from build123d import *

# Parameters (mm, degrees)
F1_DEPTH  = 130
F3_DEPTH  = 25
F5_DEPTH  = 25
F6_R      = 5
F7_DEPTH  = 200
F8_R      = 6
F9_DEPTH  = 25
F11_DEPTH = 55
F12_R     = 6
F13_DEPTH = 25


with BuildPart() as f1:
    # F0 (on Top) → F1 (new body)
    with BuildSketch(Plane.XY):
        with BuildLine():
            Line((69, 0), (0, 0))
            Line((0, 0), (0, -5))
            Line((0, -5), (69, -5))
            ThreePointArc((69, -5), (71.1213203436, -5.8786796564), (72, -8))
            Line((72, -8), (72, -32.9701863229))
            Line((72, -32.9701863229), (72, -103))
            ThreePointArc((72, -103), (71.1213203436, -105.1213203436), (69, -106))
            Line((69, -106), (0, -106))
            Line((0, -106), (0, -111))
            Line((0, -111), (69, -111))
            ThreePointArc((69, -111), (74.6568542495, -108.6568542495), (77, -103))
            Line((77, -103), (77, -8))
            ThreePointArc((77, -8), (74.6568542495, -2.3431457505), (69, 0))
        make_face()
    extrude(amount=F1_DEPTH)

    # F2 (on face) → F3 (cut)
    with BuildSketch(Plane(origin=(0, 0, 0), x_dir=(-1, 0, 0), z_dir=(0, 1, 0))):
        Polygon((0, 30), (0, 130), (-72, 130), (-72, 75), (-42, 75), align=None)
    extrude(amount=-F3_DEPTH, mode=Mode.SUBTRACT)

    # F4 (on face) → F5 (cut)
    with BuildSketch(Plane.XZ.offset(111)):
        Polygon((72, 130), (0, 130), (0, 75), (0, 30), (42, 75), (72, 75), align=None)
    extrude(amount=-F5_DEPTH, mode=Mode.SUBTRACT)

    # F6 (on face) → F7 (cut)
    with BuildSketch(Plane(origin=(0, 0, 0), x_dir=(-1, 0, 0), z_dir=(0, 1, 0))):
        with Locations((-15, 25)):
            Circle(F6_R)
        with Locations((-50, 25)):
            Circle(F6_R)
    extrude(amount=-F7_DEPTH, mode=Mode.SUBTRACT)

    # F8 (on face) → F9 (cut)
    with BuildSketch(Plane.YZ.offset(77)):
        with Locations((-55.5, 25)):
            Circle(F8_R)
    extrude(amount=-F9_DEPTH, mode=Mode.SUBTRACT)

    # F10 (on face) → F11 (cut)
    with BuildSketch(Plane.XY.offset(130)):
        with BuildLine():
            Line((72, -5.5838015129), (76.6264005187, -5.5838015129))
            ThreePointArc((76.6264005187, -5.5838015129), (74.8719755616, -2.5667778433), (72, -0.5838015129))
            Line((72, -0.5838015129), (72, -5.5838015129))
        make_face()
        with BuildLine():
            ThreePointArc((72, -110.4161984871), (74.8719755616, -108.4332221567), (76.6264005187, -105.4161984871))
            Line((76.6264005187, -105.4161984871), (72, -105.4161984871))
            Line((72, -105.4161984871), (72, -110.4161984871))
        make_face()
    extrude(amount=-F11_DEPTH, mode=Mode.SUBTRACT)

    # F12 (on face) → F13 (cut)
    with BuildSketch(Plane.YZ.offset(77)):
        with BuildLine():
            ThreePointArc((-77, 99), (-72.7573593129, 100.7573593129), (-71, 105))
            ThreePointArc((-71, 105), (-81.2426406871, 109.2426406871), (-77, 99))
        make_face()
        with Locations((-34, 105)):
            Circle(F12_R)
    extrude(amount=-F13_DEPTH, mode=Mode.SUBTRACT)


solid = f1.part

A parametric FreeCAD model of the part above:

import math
import FreeCAD as App
import Part
import Sketcher

V = App.Vector
Q = App.Units.Quantity

doc = App.newDocument("Part")
body = doc.addObject("PartDesign::Body", "Body")

# Sketch on XY plane
sketch1 = doc.addObject("Sketcher::SketchObject", "Sketch")
body.addObject(sketch1)
sketch1.AttachmentSupport = (doc.XY_Plane, [""])
sketch1.MapMode = "FlatFace"
sketch1.addGeometry([
    Part.LineSegment(V(69, 0, 0), V(0, 0, 0)),  # 0
    Part.LineSegment(V(0, 0, 0), V(0, -5, 0)),  # 1
    Part.LineSegment(V(0, -5, 0), V(69, -5, 0)),  # 2
    Part.ArcOfCircle(Part.Circle(V(69, -8, 0), V(0, 0, 1), 3), math.radians(0), math.radians(90)),  # 3
    Part.LineSegment(V(72, -8, 0), V(72, -103, 0)),  # 4
    Part.ArcOfCircle(Part.Circle(V(69, -103, 0), V(0, 0, 1), 3), math.radians(-90), math.radians(0)),  # 5
    Part.LineSegment(V(69, -106, 0), V(0, -106, 0)),  # 6
    Part.LineSegment(V(0, -106, 0), V(0, -111, 0)),  # 7
    Part.LineSegment(V(0, -111, 0), V(69, -111, 0)),  # 8
    Part.ArcOfCircle(Part.Circle(V(69, -103, 0), V(0, 0, 1), 8), math.radians(-90), math.radians(0)),  # 9
    Part.LineSegment(V(77, -103, 0), V(77, -8, 0)),  # 10
    Part.ArcOfCircle(Part.Circle(V(69, -8, 0), V(0, 0, 1), 8), math.radians(0), math.radians(90)),  # 11
], False)
sketch1.addConstraint([
    Sketcher.Constraint("Coincident", 0, 2, 1, 1),
    Sketcher.Constraint("Coincident", 1, 2, 2, 1),
    Sketcher.Constraint("Tangent", 2, 2, 3, 2),
    Sketcher.Constraint("Tangent", 3, 1, 4, 1),
    Sketcher.Constraint("Tangent", 4, 2, 5, 2),
    Sketcher.Constraint("Tangent", 5, 1, 6, 1),
    Sketcher.Constraint("Coincident", 6, 2, 7, 1),
    Sketcher.Constraint("Coincident", 7, 2, 8, 1),
    Sketcher.Constraint("Tangent", 8, 2, 9, 1),
    Sketcher.Constraint("Tangent", 9, 2, 10, 1),
    Sketcher.Constraint("Tangent", 10, 2, 11, 1),
    Sketcher.Constraint("Tangent", 11, 2, 0, 1),
    Sketcher.Constraint("Horizontal", 0),
    Sketcher.Constraint("Vertical", 1),
    Sketcher.Constraint("Horizontal", 2),
    Sketcher.Constraint("Vertical", 4),
    Sketcher.Constraint("Horizontal", 6),
    Sketcher.Constraint("Vertical", 7),
    Sketcher.Constraint("Horizontal", 8),
    Sketcher.Constraint("Vertical", 10),
    Sketcher.Constraint("Coincident", 0, 2, -1, 1),
    Sketcher.Constraint("Coincident", 9, 3, 5, 3),
    Sketcher.Constraint("Coincident", 11, 3, 3, 3),
    Sketcher.Constraint("Equal", 3, 5),
    Sketcher.Constraint("PointOnObject", 6, 2, -2),
    Sketcher.Constraint("Radius", 3, Q("3 mm")),
    Sketcher.Constraint("Radius", 9, Q("8 mm")),
    Sketcher.Constraint("DistanceX", 0, 2, 0, 1, Q("69 mm")),
    Sketcher.Constraint("DistanceY", 4, 2, 4, 1, Q("95 mm")),
])
pad1 = doc.addObject("PartDesign::Pad", "Pad")
body.addObject(pad1)
pad1.Profile = sketch1
pad1.Length = 130

# Sketch on XZ plane
sketch2 = doc.addObject("Sketcher::SketchObject", "Sketch001")
body.addObject(sketch2)
sketch2.AttachmentSupport = (doc.XZ_Plane, [""])
sketch2.MapMode = "FlatFace"
sketch2.addGeometry([
    Part.LineSegment(V(0, 30, 0), V(0, 130, 0)),  # 0
    Part.LineSegment(V(0, 130, 0), V(72, 130, 0)),  # 1
    Part.LineSegment(V(72, 130, 0), V(72, 75, 0)),  # 2
    Part.LineSegment(V(72, 75, 0), V(42, 75, 0)),  # 3
    Part.LineSegment(V(42, 75, 0), V(0, 30, 0)),  # 4
], False)
sketch2.addConstraint([
    Sketcher.Constraint("Coincident", 0, 2, 1, 1),
    Sketcher.Constraint("Coincident", 1, 2, 2, 1),
    Sketcher.Constraint("Coincident", 2, 2, 3, 1),
    Sketcher.Constraint("Coincident", 3, 2, 4, 1),
    Sketcher.Constraint("Coincident", 4, 2, 0, 1),
    Sketcher.Constraint("Vertical", 0),
    Sketcher.Constraint("Horizontal", 1),
    Sketcher.Constraint("Vertical", 2),
    Sketcher.Constraint("Horizontal", 3),
    Sketcher.Constraint("PointOnObject", 0, 2, -2),
    Sketcher.Constraint("DistanceX", 1, 1, 1, 2, Q("72 mm")),
    Sketcher.Constraint("DistanceX", 3, 2, 3, 1, Q("30 mm")),
    Sketcher.Constraint("DistanceY", 0, 1, 0, 2, Q("100 mm")),
    Sketcher.Constraint("DistanceY", 2, 2, 2, 1, Q("55 mm")),
    Sketcher.Constraint("DistanceY", -1, 1, 0, 2, Q("130 mm")),
])
pocket1 = doc.addObject("PartDesign::Pocket", "Pocket")
body.addObject(pocket1)
pocket1.Profile = sketch2
pocket1.Length = 25
pocket1.Reversed = True

# Sketch on XZ plane
sketch3 = doc.addObject("Sketcher::SketchObject", "Sketch002")
body.addObject(sketch3)
sketch3.AttachmentSupport = (doc.XZ_Plane, [""])
sketch3.MapMode = "FlatFace"
sketch3.AttachmentOffset = App.Placement(V(0, 0, 111), App.Rotation())
sketch3.addGeometry([
    Part.LineSegment(V(72, 130, 0), V(0, 130, 0)),  # 0
    Part.LineSegment(V(0, 130, 0), V(0, 30, 0)),  # 1
    Part.LineSegment(V(0, 30, 0), V(42, 75, 0)),  # 2
    Part.LineSegment(V(42, 75, 0), V(72, 75, 0)),  # 3
    Part.LineSegment(V(72, 75, 0), V(72, 130, 0)),  # 4
], False)
sketch3.addConstraint([
    Sketcher.Constraint("Coincident", 0, 2, 1, 1),
    Sketcher.Constraint("Coincident", 1, 2, 2, 1),
    Sketcher.Constraint("Coincident", 2, 2, 3, 1),
    Sketcher.Constraint("Coincident", 3, 2, 4, 1),
    Sketcher.Constraint("Coincident", 4, 2, 0, 1),
    Sketcher.Constraint("Horizontal", 0),
    Sketcher.Constraint("Vertical", 1),
    Sketcher.Constraint("Horizontal", 3),
    Sketcher.Constraint("Vertical", 4),
    Sketcher.Constraint("PointOnObject", 0, 2, -2),
    Sketcher.Constraint("DistanceX", 0, 2, 0, 1, Q("72 mm")),
    Sketcher.Constraint("DistanceX", 3, 1, 3, 2, Q("30 mm")),
    Sketcher.Constraint("DistanceY", 1, 2, 1, 1, Q("100 mm")),
    Sketcher.Constraint("DistanceY", 4, 1, 4, 2, Q("55 mm")),
    Sketcher.Constraint("DistanceY", -1, 1, 0, 2, Q("130 mm")),
])
pocket2 = doc.addObject("PartDesign::Pocket", "Pocket001")
body.addObject(pocket2)
pocket2.Profile = sketch3
pocket2.Length = 25

# Sketch on XZ plane
sketch4 = doc.addObject("Sketcher::SketchObject", "Sketch003")
body.addObject(sketch4)
sketch4.AttachmentSupport = (doc.XZ_Plane, [""])
sketch4.MapMode = "FlatFace"
sketch4.addGeometry([
    Part.Circle(V(15, 25, 0), V(0, 0, 1), 5),
    Part.Circle(V(50, 25, 0), V(0, 0, 1), 5),
], False)
sketch4.addConstraint([
    Sketcher.Constraint("Equal", 0, 1),
    Sketcher.Constraint("Horizontal", 0, 3, 1, 3),
    Sketcher.Constraint("Diameter", 0, Q("10 mm")),
    Sketcher.Constraint("DistanceX", -1, 1, 0, 3, Q("15 mm")),
    Sketcher.Constraint("DistanceY", -1, 1, 0, 3, Q("25 mm")),
    Sketcher.Constraint("DistanceX", -1, 1, 1, 3, Q("50 mm")),
])
pocket3 = doc.addObject("PartDesign::Pocket", "Pocket002")
body.addObject(pocket3)
pocket3.Profile = sketch4
pocket3.Length = 200
pocket3.Reversed = True

# Sketch on YZ plane
sketch5 = doc.addObject("Sketcher::SketchObject", "Sketch004")
body.addObject(sketch5)
sketch5.AttachmentSupport = (doc.YZ_Plane, [""])
sketch5.MapMode = "FlatFace"
sketch5.AttachmentOffset = App.Placement(V(0, 0, 77), App.Rotation())
sketch5.addGeometry(Part.Circle(V(-56, 25, 0), V(0, 0, 1), 6), False)
sketch5.addConstraint([
    Sketcher.Constraint("Diameter", 0, Q("12 mm")),
    Sketcher.Constraint("DistanceY", -1, 1, 0, 3, Q("25 mm")),
    Sketcher.Constraint("DistanceX", 0, 3, -1, 1, Q("55.5 mm")),
])
pocket4 = doc.addObject("PartDesign::Pocket", "Pocket003")
body.addObject(pocket4)
pocket4.Profile = sketch5
pocket4.Length = 25

# Sketch on XY plane
sketch6 = doc.addObject("Sketcher::SketchObject", "Sketch005")
body.addObject(sketch6)
sketch6.AttachmentSupport = (doc.XY_Plane, [""])
sketch6.MapMode = "FlatFace"
sketch6.AttachmentOffset = App.Placement(V(0, 0, 130), App.Rotation())
sketch6.addGeometry([
    Part.LineSegment(V(72, -5.6, 0), V(76.6, -5.6, 0)),  # 0
    Part.ArcOfCircle(Part.Circle(V(69, -8, 0), V(0, 0, 1), 8), math.radians(18), math.radians(68)),  # 1
    Part.LineSegment(V(72, -0.6, 0), V(72, -5.6, 0)),  # 2
    Part.ArcOfCircle(Part.Circle(V(69, -103, 0), V(0, 0, 1), 8), math.radians(-68), math.radians(-18)),  # 3
    Part.LineSegment(V(76.6, -105.4, 0), V(72, -105.4, 0)),  # 4
    Part.LineSegment(V(72, -105.4, 0), V(72, -110.4, 0)),  # 5
], False)
sketch6.addConstraint([
    Sketcher.Constraint("Coincident", 0, 2, 1, 1),
    Sketcher.Constraint("Coincident", 1, 2, 2, 1),
    Sketcher.Constraint("Coincident", 2, 2, 0, 1),
    Sketcher.Constraint("Coincident", 3, 2, 4, 1),
    Sketcher.Constraint("Coincident", 4, 2, 5, 1),
    Sketcher.Constraint("Coincident", 5, 2, 3, 1),
    Sketcher.Constraint("Horizontal", 0),
    Sketcher.Constraint("Vertical", 2),
    Sketcher.Constraint("Horizontal", 4),
    Sketcher.Constraint("Vertical", 5),
    Sketcher.Constraint("Equal", 1, 3),
    Sketcher.Constraint("Vertical", 1, 3, 3, 3),
    Sketcher.Constraint("Vertical", 0, 2, 3, 2),
    Sketcher.Constraint("Vertical", 2, 2, 4, 2),
    Sketcher.Constraint("Radius", 1, Q("8 mm")),
    Sketcher.Constraint("DistanceY", 2, 2, 2, 1, Q("5 mm")),
    Sketcher.Constraint("DistanceX", -1, 1, 1, 3, Q("69 mm")),
    Sketcher.Constraint("DistanceY", 1, 3, -1, 1, Q("8 mm")),
    Sketcher.Constraint("DistanceY", 3, 3, -1, 1, Q("103 mm")),
    Sketcher.Constraint("DistanceX", -1, 1, 1, 2, Q("72 mm")),
])
pocket5 = doc.addObject("PartDesign::Pocket", "Pocket004")
body.addObject(pocket5)
pocket5.Profile = sketch6
pocket5.Length = 55

# Sketch on YZ plane
sketch7 = doc.addObject("Sketcher::SketchObject", "Sketch006")
body.addObject(sketch7)
sketch7.AttachmentSupport = (doc.YZ_Plane, [""])
sketch7.MapMode = "FlatFace"
sketch7.AttachmentOffset = App.Placement(V(0, 0, 77), App.Rotation())
sketch7.addGeometry([
    Part.ArcOfCircle(Part.Circle(V(-77, 105, 0), V(0, 0, 1), 6), math.radians(-90), math.radians(0)),
    Part.ArcOfCircle(Part.Circle(V(-77, 105, 0), V(0, 0, 1), 6), math.radians(0), math.radians(270)),
    Part.Circle(V(-34, 105, 0), V(0, 0, 1), 6),
], False)
sketch7.addConstraint([
    Sketcher.Constraint("Tangent", 0, 1, 1, 2),
    Sketcher.Constraint("Coincident", 1, 1, 0, 2),
    Sketcher.Constraint("Equal", 1, 2),
    Sketcher.Constraint("Horizontal", 1, 3, 2, 3),
    Sketcher.Constraint("Horizontal", 2, 3, 1, 1),
    Sketcher.Constraint("Vertical", 1, 3, 0, 1),
    Sketcher.Constraint("Diameter", 2, Q("12 mm")),
    Sketcher.Constraint("DistanceX", 0, 3, -1, 1, Q("77 mm")),
    Sketcher.Constraint("DistanceY", -1, 1, 0, 3, Q("105 mm")),
    Sketcher.Constraint("DistanceX", 2, 3, -1, 1, Q("34 mm")),
])
pocket6 = doc.addObject("PartDesign::Pocket", "Pocket005")
body.addObject(pocket6)
pocket6.Profile = sketch7
pocket6.Length = 25

doc.recompute()
